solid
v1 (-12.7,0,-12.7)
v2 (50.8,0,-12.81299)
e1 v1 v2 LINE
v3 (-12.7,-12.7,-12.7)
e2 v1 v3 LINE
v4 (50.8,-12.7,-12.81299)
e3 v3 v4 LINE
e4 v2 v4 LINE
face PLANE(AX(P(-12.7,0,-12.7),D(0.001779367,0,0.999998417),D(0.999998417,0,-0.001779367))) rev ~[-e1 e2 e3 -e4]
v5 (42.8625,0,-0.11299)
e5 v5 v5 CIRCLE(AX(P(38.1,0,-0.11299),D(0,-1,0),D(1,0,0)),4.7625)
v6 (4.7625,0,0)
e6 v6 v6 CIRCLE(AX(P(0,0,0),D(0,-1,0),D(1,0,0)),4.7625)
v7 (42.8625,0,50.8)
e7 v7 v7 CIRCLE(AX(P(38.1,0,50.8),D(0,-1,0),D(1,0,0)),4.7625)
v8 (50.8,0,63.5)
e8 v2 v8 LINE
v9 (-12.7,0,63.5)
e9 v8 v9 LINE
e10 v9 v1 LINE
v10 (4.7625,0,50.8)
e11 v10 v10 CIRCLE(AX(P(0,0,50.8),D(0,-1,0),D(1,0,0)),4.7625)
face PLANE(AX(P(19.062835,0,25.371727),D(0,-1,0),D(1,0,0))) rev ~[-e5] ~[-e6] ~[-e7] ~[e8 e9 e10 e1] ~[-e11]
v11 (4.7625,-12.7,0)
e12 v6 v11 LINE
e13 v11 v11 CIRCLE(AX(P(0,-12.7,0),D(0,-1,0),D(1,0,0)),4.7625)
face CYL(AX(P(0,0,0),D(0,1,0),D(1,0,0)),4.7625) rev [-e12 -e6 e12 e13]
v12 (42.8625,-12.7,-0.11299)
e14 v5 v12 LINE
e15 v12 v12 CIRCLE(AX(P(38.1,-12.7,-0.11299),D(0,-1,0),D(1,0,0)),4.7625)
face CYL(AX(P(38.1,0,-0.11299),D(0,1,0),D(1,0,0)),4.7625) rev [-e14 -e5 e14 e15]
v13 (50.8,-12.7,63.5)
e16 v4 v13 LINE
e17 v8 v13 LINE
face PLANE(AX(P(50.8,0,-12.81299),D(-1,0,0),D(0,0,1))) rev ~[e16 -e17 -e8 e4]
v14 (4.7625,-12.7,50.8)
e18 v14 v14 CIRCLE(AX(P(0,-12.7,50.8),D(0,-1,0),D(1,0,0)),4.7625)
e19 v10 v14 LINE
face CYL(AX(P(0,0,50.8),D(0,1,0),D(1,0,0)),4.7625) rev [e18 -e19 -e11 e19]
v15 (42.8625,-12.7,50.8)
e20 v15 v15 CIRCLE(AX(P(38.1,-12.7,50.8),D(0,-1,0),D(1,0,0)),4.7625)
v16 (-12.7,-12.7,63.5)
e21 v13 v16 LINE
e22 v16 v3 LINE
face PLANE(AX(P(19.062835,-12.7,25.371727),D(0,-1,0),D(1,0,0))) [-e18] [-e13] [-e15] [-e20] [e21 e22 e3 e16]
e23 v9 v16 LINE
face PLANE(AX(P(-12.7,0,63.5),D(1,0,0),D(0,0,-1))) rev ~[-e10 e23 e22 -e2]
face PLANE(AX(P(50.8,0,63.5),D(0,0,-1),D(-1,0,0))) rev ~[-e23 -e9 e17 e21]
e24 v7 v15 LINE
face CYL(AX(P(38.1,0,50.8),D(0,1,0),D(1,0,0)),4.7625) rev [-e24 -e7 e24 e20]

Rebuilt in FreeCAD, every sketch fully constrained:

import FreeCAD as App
import Part
import Sketcher

V = App.Vector
Q = App.Units.Quantity

doc = App.newDocument("Part")
body = doc.addObject("PartDesign::Body", "Body")

# Sketch on XZ plane
sketch1 = body.newObject("Sketcher::SketchObject", "Sketch")
sketch1.AttachmentSupport = (doc.getObject("XZ_Plane"), [""])
sketch1.MapMode = "FlatFace"
sketch1.addGeometry([
    Part.LineSegment(V(-12.7, -12.7, 0), V(50.8, -12.81299, 0)),  # 0
    Part.LineSegment(V(50.8, -12.81299, 0), V(50.8, 63.5, 0)),  # 1
    Part.LineSegment(V(50.8, 63.5, 0), V(-12.7, 63.5, 0)),  # 2
    Part.LineSegment(V(-12.7, 63.5, 0), V(-12.7, -12.7, 0)),  # 3
    Part.Circle(V(0, 0, 0), V(0, 0, 1), 4.7625),  # 4
    Part.Circle(V(38.1, -0.11299, 0), V(0, 0, 1), 4.7625),  # 5
    Part.Circle(V(0, 50.8, 0), V(0, 0, 1), 4.7625),  # 6
    Part.Circle(V(38.1, 50.8, 0), V(0, 0, 1), 4.7625),  # 7
], False)
sketch1.addConstraint([
    Sketcher.Constraint("Coincident", 0, 2, 1, 1),
    Sketcher.Constraint("Coincident", 1, 2, 2, 1),
    Sketcher.Constraint("Coincident", 2, 2, 3, 1),
    Sketcher.Constraint("Coincident", 3, 2, 0, 1),
    Sketcher.Constraint("Vertical", 1),
    Sketcher.Constraint("Horizontal", 2),
    Sketcher.Constraint("Vertical", 3),
    Sketcher.Constraint("Coincident", 4, 3, -1, 1),
    Sketcher.Constraint("Equal", 4, 5),
    Sketcher.Constraint("Equal", 5, 6),
    Sketcher.Constraint("Equal", 6, 7),
    Sketcher.Constraint("PointOnObject", 6, 3, -2),
    Sketcher.Constraint("Horizontal", 6, 3, 7, 3),
    Sketcher.Constraint("Vertical", 5, 3, 7, 3),
    Sketcher.Constraint("DistanceY", 3, 2, 3, 1, Q("3 in")),
    Sketcher.Constraint("Diameter", 4, Q("0.375 in")),
    Sketcher.Constraint("DistanceX", 2, 2, 2, 1, Q("2.5 in")),
    Sketcher.Constraint("DistanceY", -1, 1, 6, 3, Q("2 in")),
    Sketcher.Constraint("DistanceX", -1, 1, 0, 2, Q("2 in")),
    Sketcher.Constraint("DistanceX", 2, 2, 7, 3, Q("2 in")),
    Sketcher.Constraint("DistanceY", -1, 1, 1, 2, Q("2.5 in")),
    Sketcher.Constraint("DistanceY", 0, 2, 5, 3, Q("0.5 in")),
    Sketcher.Constraint("DistanceY", 1, 1, 1, 2, Q("76.31299 mm")),
])
pad1 = body.newObject("PartDesign::Pad", "Pad")
pad1.Profile = sketch1
pad1.Length = Q("0.5 in")

doc.recompute()
